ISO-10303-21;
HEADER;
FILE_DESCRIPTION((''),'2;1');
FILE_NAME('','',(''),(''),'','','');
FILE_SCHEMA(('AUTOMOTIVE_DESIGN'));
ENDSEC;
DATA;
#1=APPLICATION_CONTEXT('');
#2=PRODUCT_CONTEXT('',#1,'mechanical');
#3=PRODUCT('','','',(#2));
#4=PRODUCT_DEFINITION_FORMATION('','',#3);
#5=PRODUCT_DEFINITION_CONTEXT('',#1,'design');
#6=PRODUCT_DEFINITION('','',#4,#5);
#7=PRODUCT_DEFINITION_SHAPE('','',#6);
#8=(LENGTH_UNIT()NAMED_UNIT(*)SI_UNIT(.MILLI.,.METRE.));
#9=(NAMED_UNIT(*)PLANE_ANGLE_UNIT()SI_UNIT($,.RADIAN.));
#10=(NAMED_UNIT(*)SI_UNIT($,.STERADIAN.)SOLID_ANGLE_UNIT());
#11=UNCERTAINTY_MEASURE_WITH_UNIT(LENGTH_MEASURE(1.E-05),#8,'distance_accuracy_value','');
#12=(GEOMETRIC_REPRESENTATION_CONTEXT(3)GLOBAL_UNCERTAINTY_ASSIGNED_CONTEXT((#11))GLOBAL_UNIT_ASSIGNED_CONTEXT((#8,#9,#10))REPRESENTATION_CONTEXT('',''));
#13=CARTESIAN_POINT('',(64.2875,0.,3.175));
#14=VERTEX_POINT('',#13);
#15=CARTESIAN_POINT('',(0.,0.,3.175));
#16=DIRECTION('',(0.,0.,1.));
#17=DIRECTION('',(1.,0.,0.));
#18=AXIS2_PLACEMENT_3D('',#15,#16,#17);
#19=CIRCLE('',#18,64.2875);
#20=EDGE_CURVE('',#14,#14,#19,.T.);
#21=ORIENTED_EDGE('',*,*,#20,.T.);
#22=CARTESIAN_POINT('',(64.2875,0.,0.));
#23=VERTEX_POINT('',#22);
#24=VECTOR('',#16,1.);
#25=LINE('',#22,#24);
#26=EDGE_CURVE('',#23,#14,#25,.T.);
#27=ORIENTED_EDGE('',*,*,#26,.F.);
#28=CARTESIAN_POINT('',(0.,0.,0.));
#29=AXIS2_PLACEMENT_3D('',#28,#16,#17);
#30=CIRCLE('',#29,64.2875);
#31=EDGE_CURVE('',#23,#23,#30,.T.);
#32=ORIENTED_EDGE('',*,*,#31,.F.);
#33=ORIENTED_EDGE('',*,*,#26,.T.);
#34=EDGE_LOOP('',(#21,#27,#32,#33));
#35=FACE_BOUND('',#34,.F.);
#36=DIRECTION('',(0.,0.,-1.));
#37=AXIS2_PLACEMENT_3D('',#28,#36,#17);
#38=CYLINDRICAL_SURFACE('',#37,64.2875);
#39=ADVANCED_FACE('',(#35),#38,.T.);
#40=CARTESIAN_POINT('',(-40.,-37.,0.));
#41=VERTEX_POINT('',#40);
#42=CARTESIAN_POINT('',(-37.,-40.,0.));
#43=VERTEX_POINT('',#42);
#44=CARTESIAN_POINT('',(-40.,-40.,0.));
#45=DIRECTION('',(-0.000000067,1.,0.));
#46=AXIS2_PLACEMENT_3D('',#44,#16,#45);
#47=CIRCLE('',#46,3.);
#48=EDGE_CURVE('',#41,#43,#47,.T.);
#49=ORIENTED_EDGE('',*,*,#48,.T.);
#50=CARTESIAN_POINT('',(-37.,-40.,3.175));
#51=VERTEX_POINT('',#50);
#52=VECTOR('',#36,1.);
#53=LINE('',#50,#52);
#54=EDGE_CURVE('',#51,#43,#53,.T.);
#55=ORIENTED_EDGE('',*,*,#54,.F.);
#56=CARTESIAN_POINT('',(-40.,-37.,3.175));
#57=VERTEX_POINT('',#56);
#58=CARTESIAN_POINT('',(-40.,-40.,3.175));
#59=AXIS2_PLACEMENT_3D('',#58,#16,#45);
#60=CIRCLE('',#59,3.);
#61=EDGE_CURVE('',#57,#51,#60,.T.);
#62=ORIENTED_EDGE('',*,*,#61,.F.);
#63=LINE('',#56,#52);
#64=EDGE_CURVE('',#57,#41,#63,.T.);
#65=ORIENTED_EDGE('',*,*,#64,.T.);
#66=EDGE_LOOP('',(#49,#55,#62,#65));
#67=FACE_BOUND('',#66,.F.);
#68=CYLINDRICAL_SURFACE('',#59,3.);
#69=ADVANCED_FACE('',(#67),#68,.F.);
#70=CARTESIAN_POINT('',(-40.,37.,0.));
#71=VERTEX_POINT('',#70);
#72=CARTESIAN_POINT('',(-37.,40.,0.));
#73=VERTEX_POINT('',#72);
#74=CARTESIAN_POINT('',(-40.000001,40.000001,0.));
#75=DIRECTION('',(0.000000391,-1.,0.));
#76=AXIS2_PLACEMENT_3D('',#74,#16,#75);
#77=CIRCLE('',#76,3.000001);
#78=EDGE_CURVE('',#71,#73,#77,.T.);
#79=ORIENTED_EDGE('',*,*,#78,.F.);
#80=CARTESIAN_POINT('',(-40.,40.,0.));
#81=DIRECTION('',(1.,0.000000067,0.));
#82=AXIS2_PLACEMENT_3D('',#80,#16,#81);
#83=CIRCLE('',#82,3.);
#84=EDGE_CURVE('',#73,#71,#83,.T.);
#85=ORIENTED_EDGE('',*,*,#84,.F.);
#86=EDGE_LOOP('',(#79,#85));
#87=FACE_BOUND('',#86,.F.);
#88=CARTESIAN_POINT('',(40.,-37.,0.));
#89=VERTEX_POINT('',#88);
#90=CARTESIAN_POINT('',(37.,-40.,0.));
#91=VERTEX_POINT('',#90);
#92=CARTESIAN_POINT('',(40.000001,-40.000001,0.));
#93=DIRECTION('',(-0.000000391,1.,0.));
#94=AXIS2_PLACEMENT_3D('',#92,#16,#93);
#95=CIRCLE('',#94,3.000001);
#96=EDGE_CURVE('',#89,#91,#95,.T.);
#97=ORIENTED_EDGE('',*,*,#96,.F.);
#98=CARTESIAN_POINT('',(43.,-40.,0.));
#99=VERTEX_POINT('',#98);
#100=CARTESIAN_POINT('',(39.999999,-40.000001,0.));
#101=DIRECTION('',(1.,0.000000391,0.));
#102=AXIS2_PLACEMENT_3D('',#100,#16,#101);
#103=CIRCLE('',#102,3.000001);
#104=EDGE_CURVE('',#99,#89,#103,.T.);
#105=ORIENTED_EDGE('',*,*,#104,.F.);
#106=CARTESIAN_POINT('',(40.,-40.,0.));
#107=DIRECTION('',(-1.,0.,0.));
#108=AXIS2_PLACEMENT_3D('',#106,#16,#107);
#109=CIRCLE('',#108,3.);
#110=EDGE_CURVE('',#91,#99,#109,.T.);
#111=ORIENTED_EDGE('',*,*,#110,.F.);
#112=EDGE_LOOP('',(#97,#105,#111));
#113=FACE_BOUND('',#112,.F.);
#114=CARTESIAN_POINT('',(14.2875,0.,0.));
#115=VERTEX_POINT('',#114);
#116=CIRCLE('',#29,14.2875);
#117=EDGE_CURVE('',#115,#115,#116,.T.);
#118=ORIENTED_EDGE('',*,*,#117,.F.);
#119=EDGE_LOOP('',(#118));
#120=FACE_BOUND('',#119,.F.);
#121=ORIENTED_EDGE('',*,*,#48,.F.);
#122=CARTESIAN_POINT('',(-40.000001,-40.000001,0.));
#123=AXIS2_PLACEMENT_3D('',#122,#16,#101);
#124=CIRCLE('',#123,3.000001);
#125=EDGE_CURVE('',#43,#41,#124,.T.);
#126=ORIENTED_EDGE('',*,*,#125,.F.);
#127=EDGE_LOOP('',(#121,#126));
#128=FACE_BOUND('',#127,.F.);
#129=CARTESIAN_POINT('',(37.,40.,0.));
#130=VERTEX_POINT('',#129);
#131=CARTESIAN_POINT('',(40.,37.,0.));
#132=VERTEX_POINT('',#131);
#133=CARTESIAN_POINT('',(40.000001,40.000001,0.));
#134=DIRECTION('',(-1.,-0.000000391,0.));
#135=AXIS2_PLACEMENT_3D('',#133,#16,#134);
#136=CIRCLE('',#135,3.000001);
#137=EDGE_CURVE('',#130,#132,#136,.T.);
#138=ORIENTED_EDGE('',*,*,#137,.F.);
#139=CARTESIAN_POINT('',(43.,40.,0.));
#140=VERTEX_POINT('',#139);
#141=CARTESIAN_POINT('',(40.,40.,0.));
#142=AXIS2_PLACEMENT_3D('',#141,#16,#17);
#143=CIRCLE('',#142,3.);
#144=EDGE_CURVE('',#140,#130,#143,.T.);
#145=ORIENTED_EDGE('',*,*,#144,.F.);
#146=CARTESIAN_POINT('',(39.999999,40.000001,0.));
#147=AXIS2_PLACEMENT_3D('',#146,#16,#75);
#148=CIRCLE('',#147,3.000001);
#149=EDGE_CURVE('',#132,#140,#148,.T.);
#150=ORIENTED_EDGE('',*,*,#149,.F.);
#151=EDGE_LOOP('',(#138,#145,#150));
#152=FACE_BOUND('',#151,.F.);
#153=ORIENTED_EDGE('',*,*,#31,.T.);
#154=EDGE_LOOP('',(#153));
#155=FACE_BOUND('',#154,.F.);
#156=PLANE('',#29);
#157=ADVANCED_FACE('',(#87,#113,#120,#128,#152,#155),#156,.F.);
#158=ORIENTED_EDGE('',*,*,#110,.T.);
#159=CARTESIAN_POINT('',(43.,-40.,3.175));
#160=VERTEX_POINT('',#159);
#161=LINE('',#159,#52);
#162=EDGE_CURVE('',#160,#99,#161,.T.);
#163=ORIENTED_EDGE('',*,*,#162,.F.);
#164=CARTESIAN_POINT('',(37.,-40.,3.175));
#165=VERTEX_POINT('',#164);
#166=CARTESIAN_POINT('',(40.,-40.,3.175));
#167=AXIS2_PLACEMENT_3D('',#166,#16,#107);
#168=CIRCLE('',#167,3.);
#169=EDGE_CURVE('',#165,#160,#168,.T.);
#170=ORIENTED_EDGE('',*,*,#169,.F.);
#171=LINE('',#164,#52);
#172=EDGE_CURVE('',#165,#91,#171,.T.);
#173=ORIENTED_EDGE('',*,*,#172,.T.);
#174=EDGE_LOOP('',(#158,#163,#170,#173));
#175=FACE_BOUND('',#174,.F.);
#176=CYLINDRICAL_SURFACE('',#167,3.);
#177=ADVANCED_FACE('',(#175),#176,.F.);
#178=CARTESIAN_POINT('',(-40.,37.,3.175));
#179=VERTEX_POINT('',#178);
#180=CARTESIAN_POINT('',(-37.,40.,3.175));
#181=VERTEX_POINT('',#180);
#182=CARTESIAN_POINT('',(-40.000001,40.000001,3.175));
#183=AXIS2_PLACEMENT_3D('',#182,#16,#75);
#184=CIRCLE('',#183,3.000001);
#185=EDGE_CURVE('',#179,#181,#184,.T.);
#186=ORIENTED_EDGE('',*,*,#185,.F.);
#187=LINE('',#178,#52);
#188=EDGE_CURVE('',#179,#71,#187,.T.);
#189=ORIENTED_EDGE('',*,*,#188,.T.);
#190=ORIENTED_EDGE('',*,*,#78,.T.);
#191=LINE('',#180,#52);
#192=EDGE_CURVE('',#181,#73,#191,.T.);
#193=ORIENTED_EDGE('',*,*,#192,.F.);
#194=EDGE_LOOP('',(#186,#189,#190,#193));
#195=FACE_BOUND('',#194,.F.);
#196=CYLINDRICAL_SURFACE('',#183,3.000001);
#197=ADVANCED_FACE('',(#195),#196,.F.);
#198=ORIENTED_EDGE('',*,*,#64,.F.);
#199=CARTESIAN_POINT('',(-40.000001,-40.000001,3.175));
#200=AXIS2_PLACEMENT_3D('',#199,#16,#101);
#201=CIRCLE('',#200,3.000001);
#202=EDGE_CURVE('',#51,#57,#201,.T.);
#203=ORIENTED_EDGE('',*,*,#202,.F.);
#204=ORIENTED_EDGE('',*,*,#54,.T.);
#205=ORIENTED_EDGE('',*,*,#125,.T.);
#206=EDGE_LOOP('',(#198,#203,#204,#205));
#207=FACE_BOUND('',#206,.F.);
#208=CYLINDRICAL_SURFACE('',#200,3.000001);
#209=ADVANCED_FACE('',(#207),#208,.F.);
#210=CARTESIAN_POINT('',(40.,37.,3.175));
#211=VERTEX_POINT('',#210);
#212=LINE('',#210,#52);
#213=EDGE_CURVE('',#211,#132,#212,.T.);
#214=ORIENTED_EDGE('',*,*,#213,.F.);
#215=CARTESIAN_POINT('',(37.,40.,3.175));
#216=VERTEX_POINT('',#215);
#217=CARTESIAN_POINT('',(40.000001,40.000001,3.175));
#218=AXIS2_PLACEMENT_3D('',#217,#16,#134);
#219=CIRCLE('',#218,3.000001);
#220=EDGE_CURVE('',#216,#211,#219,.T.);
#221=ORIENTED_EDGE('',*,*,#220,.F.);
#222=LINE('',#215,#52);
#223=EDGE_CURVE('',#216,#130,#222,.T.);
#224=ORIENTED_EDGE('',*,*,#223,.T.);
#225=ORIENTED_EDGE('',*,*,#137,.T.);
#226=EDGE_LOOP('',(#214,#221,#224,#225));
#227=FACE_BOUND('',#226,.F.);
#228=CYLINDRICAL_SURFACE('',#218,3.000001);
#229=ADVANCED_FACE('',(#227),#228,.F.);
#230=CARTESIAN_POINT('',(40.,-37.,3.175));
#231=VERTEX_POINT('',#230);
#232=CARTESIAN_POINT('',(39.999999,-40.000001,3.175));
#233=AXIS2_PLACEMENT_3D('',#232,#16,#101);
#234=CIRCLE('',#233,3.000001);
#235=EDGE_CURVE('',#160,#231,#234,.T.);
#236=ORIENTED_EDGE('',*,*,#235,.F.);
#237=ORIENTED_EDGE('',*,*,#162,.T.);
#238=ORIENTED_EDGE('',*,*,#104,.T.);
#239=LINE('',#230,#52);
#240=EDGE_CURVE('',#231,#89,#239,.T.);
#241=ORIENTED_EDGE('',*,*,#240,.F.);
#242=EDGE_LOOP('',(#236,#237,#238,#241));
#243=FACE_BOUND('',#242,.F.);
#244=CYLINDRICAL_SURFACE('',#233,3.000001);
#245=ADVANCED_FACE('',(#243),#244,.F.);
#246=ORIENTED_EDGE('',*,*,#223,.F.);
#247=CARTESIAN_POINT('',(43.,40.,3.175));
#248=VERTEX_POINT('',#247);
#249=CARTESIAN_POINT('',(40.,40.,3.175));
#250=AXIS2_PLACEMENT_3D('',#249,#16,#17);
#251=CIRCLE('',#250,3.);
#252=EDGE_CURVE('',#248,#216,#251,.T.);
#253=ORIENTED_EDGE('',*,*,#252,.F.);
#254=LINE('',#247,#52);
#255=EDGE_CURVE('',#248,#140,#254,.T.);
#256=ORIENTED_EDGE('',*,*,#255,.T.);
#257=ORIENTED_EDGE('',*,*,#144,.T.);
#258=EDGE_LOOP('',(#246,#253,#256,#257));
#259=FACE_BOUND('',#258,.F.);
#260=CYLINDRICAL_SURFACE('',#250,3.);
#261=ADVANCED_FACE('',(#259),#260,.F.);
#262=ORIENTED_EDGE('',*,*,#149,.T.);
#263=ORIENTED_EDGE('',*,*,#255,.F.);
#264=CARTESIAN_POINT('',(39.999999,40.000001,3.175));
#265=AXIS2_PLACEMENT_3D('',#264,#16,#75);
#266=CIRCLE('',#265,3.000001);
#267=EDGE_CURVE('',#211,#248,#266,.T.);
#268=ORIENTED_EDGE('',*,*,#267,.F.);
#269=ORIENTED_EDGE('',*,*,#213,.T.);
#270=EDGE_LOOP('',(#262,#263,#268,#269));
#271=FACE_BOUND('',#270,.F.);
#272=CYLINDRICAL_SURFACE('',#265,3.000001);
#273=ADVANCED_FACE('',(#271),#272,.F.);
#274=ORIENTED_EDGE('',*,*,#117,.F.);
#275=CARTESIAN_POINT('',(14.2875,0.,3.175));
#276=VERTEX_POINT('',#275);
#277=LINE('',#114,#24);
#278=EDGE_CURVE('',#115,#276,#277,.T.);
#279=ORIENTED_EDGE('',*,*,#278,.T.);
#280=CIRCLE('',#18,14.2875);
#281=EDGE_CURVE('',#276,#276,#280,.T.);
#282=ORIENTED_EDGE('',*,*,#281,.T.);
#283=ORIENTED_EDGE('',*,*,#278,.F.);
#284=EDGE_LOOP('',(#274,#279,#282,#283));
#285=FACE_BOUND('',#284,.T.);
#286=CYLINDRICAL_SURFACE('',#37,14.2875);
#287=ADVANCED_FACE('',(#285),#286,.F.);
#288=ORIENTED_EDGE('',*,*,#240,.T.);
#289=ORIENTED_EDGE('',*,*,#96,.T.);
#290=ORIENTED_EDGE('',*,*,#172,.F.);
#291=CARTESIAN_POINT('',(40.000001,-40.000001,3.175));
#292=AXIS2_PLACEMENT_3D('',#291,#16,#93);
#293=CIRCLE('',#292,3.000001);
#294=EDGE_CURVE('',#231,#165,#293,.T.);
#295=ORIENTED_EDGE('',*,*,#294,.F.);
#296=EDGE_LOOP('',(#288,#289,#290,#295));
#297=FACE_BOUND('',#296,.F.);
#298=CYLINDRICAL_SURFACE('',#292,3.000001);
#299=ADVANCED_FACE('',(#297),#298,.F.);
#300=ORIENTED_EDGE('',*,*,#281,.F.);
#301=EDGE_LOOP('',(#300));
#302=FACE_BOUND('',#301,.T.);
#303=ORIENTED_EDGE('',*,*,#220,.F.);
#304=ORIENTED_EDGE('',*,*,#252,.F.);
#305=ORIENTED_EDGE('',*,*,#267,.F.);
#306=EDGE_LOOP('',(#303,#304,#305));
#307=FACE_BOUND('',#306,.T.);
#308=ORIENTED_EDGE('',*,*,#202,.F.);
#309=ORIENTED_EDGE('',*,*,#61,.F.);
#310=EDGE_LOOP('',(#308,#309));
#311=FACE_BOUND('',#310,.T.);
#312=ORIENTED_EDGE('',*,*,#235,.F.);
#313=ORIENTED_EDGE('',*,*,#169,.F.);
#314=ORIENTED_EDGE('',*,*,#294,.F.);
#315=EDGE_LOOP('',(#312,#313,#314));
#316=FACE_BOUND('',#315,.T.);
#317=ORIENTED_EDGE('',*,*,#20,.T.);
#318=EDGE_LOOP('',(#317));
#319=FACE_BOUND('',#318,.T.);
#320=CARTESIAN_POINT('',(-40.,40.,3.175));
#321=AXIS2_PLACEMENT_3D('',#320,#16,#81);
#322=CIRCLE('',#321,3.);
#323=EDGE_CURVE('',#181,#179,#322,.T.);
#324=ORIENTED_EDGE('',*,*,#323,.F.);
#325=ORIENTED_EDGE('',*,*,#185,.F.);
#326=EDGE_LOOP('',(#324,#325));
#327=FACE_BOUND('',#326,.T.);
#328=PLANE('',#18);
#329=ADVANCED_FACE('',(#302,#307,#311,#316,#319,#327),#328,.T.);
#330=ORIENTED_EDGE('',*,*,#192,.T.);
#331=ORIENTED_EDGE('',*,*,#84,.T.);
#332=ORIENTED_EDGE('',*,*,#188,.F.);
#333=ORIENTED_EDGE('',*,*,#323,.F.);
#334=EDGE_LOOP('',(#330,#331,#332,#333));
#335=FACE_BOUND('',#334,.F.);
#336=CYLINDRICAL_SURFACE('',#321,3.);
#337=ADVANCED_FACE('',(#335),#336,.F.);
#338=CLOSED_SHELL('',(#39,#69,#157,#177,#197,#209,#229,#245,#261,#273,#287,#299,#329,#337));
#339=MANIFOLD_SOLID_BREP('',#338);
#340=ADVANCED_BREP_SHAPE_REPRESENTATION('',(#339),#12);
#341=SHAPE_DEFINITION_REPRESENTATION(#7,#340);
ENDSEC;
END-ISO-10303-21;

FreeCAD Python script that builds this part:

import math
import FreeCAD as App
import Part
import Sketcher
from FreeCAD import Vector

doc = App.newDocument("Part")
params = doc.addObject("Spreadsheet::Sheet", "Params")
for row, (alias, value) in enumerate([
    ("pad1_length", "3.175 mm"),
    ("sketch2_radius", "3.000001 mm"),
    ("pocket1_length", "25 mm"),
], start=1):
    params.set(f"A{row}", alias)
    params.set(f"B{row}", "=" + value)
    params.setAlias(f"B{row}", alias)

body = doc.addObject("PartDesign::Body", "Body")

sketch1 = doc.addObject("Sketcher::SketchObject", "Sketch")
body.addObject(sketch1)
sketch1.AttachmentSupport = (doc.XY_Plane, [""])
sketch1.MapMode = "FlatFace"
sketch1.addGeometry(Part.Circle(Vector(0, 0, 0), Vector(0, 0, 1), 64), False)
sketch1.addGeometry(Part.Circle(Vector(0, 0, 0), Vector(0, 0, 1), 14), False)
sketch1.addConstraint(Sketcher.Constraint("Coincident", 0, 3, -1, 1))
sketch1.addConstraint(Sketcher.Constraint("Coincident", 1, 3, -1, 1))
sketch1.addConstraint(Sketcher.Constraint("Diameter", 0, 128.575))
sketch1.addConstraint(Sketcher.Constraint("Diameter", 1, 28.575))
pad1 = doc.addObject("PartDesign::Pad", "Pad")
body.addObject(pad1)
pad1.Profile = sketch1
pad1.setExpression("Length", "Params.pad1_length")

sketch2 = doc.addObject("Sketcher::SketchObject", "Sketch001")
body.addObject(sketch2)
sketch2.AttachmentSupport = (doc.XY_Plane, [""])
sketch2.MapMode = "FlatFace"
sketch2.AttachmentOffset = App.Placement(Vector(0, 0, 3.175), App.Rotation())
sketch2.addGeometry(Part.ArcOfCircle(Part.Circle(Vector(-40, 40, 0), Vector(0, 0, 1), 3), math.radians(-90), math.radians(0)), False)
sketch2.addGeometry(Part.ArcOfCircle(Part.Circle(Vector(-40, 40, 0), Vector(0, 0, 1), 3), math.radians(0), math.radians(270)), False)
sketch2.addGeometry(Part.ArcOfCircle(Part.Circle(Vector(40, 40, 0), Vector(0, 0, 1), 3), math.radians(-180), math.radians(-90)), False)
sketch2.addGeometry(Part.ArcOfCircle(Part.Circle(Vector(40, 40, 0), Vector(0, 0, 1), 3), math.radians(-90), math.radians(0)), False)
sketch2.addGeometry(Part.ArcOfCircle(Part.Circle(Vector(40, 40, 0), Vector(0, 0, 1), 3), math.radians(0), math.radians(180)), False)
sketch2.addGeometry(Part.ArcOfCircle(Part.Circle(Vector(40, -40, 0), Vector(0, 0, 1), 3), math.radians(0), math.radians(90)), False)
sketch2.addGeometry(Part.ArcOfCircle(Part.Circle(Vector(40, -40, 0), Vector(0, 0, 1), 3), math.radians(90), math.radians(180)), False)
sketch2.addGeometry(Part.ArcOfCircle(Part.Circle(Vector(40, -40, 0), Vector(0, 0, 1), 3), math.radians(180), math.radians(360)), False)
sketch2.addGeometry(Part.ArcOfCircle(Part.Circle(Vector(-40, -40, 0), Vector(0, 0, 1), 3), math.radians(90), math.radians(360)), False)
sketch2.addGeometry(Part.ArcOfCircle(Part.Circle(Vector(-40, -40, 0), Vector(0, 0, 1), 3), math.radians(0), math.radians(90)), False)
sketch2.addConstraint(Sketcher.Constraint("Tangent", 0, 1, 1, 2))
sketch2.addConstraint(Sketcher.Constraint("Coincident", 1, 1, 0, 2))
sketch2.addConstraint(Sketcher.Constraint("Tangent", 2, 2, 3, 1))
sketch2.addConstraint(Sketcher.Constraint("Tangent", 3, 2, 4, 1))
sketch2.addConstraint(Sketcher.Constraint("Tangent", 4, 2, 2, 1))
sketch2.addConstraint(Sketcher.Constraint("Tangent", 5, 2, 6, 1))
sketch2.addConstraint(Sketcher.Constraint("Tangent", 6, 2, 7, 1))
sketch2.addConstraint(Sketcher.Constraint("Tangent", 7, 2, 5, 1))
sketch2.addConstraint(Sketcher.Constraint("Tangent", 8, 1, 9, 2))
sketch2.addConstraint(Sketcher.Constraint("Coincident", 9, 1, 8, 2))
sketch2.addConstraint(Sketcher.Constraint("Equal", 1, 2))
sketch2.addConstraint(Sketcher.Constraint("Equal", 4, 5))
sketch2.addConstraint(Sketcher.Constraint("Equal", 7, 8))
sketch2.addConstraint(Sketcher.Constraint("Symmetric", 0, 3, 5, 3, -1, 1))
sketch2.addConstraint(Sketcher.Constraint("Symmetric", 2, 3, 8, 3, -1, 1))
sketch2.addConstraint(Sketcher.Constraint("Symmetric", 0, 3, 2, 3, -2))
sketch2.addConstraint(Sketcher.Constraint("Horizontal", 4, 3, 1, 1))
sketch2.addConstraint(Sketcher.Constraint("Horizontal", 1, 1, 3, 2))
sketch2.addConstraint(Sketcher.Constraint("Horizontal", 3, 2, 4, 2))
sketch2.addConstraint(Sketcher.Constraint("Horizontal", 9, 3, 6, 2))
sketch2.addConstraint(Sketcher.Constraint("Horizontal", 6, 2, 7, 2))
sketch2.addConstraint(Sketcher.Constraint("Horizontal", 7, 2, 9, 1))
sketch2.addConstraint(Sketcher.Constraint("Vertical", 9, 3, 0, 1))
sketch2.addConstraint(Sketcher.Constraint("Vertical", 7, 3, 2, 2))
sketch2.addConstraint(Sketcher.Constraint("Vertical", 2, 2, 5, 2))
sketch2.addConstraint(Sketcher.Constraint("Vertical", 0, 1, 8, 1))
sketch2.addConstraint(Sketcher.Constraint("Radius", 0, 3.000001))
sketch2.addConstraint(Sketcher.Constraint("DistanceX", 0, 3, -1, 1, 40.000001))
sketch2.addConstraint(Sketcher.Constraint("DistanceY", -1, 1, 0, 3, 40.000001))
sketch2.setExpression("Constraints[26]", "Params.sketch2_radius")
pocket1 = doc.addObject("PartDesign::Pocket", "Pocket")
body.addObject(pocket1)
pocket1.Profile = sketch2
pocket1.setExpression("Length", "Params.pocket1_length")

doc.recompute()
